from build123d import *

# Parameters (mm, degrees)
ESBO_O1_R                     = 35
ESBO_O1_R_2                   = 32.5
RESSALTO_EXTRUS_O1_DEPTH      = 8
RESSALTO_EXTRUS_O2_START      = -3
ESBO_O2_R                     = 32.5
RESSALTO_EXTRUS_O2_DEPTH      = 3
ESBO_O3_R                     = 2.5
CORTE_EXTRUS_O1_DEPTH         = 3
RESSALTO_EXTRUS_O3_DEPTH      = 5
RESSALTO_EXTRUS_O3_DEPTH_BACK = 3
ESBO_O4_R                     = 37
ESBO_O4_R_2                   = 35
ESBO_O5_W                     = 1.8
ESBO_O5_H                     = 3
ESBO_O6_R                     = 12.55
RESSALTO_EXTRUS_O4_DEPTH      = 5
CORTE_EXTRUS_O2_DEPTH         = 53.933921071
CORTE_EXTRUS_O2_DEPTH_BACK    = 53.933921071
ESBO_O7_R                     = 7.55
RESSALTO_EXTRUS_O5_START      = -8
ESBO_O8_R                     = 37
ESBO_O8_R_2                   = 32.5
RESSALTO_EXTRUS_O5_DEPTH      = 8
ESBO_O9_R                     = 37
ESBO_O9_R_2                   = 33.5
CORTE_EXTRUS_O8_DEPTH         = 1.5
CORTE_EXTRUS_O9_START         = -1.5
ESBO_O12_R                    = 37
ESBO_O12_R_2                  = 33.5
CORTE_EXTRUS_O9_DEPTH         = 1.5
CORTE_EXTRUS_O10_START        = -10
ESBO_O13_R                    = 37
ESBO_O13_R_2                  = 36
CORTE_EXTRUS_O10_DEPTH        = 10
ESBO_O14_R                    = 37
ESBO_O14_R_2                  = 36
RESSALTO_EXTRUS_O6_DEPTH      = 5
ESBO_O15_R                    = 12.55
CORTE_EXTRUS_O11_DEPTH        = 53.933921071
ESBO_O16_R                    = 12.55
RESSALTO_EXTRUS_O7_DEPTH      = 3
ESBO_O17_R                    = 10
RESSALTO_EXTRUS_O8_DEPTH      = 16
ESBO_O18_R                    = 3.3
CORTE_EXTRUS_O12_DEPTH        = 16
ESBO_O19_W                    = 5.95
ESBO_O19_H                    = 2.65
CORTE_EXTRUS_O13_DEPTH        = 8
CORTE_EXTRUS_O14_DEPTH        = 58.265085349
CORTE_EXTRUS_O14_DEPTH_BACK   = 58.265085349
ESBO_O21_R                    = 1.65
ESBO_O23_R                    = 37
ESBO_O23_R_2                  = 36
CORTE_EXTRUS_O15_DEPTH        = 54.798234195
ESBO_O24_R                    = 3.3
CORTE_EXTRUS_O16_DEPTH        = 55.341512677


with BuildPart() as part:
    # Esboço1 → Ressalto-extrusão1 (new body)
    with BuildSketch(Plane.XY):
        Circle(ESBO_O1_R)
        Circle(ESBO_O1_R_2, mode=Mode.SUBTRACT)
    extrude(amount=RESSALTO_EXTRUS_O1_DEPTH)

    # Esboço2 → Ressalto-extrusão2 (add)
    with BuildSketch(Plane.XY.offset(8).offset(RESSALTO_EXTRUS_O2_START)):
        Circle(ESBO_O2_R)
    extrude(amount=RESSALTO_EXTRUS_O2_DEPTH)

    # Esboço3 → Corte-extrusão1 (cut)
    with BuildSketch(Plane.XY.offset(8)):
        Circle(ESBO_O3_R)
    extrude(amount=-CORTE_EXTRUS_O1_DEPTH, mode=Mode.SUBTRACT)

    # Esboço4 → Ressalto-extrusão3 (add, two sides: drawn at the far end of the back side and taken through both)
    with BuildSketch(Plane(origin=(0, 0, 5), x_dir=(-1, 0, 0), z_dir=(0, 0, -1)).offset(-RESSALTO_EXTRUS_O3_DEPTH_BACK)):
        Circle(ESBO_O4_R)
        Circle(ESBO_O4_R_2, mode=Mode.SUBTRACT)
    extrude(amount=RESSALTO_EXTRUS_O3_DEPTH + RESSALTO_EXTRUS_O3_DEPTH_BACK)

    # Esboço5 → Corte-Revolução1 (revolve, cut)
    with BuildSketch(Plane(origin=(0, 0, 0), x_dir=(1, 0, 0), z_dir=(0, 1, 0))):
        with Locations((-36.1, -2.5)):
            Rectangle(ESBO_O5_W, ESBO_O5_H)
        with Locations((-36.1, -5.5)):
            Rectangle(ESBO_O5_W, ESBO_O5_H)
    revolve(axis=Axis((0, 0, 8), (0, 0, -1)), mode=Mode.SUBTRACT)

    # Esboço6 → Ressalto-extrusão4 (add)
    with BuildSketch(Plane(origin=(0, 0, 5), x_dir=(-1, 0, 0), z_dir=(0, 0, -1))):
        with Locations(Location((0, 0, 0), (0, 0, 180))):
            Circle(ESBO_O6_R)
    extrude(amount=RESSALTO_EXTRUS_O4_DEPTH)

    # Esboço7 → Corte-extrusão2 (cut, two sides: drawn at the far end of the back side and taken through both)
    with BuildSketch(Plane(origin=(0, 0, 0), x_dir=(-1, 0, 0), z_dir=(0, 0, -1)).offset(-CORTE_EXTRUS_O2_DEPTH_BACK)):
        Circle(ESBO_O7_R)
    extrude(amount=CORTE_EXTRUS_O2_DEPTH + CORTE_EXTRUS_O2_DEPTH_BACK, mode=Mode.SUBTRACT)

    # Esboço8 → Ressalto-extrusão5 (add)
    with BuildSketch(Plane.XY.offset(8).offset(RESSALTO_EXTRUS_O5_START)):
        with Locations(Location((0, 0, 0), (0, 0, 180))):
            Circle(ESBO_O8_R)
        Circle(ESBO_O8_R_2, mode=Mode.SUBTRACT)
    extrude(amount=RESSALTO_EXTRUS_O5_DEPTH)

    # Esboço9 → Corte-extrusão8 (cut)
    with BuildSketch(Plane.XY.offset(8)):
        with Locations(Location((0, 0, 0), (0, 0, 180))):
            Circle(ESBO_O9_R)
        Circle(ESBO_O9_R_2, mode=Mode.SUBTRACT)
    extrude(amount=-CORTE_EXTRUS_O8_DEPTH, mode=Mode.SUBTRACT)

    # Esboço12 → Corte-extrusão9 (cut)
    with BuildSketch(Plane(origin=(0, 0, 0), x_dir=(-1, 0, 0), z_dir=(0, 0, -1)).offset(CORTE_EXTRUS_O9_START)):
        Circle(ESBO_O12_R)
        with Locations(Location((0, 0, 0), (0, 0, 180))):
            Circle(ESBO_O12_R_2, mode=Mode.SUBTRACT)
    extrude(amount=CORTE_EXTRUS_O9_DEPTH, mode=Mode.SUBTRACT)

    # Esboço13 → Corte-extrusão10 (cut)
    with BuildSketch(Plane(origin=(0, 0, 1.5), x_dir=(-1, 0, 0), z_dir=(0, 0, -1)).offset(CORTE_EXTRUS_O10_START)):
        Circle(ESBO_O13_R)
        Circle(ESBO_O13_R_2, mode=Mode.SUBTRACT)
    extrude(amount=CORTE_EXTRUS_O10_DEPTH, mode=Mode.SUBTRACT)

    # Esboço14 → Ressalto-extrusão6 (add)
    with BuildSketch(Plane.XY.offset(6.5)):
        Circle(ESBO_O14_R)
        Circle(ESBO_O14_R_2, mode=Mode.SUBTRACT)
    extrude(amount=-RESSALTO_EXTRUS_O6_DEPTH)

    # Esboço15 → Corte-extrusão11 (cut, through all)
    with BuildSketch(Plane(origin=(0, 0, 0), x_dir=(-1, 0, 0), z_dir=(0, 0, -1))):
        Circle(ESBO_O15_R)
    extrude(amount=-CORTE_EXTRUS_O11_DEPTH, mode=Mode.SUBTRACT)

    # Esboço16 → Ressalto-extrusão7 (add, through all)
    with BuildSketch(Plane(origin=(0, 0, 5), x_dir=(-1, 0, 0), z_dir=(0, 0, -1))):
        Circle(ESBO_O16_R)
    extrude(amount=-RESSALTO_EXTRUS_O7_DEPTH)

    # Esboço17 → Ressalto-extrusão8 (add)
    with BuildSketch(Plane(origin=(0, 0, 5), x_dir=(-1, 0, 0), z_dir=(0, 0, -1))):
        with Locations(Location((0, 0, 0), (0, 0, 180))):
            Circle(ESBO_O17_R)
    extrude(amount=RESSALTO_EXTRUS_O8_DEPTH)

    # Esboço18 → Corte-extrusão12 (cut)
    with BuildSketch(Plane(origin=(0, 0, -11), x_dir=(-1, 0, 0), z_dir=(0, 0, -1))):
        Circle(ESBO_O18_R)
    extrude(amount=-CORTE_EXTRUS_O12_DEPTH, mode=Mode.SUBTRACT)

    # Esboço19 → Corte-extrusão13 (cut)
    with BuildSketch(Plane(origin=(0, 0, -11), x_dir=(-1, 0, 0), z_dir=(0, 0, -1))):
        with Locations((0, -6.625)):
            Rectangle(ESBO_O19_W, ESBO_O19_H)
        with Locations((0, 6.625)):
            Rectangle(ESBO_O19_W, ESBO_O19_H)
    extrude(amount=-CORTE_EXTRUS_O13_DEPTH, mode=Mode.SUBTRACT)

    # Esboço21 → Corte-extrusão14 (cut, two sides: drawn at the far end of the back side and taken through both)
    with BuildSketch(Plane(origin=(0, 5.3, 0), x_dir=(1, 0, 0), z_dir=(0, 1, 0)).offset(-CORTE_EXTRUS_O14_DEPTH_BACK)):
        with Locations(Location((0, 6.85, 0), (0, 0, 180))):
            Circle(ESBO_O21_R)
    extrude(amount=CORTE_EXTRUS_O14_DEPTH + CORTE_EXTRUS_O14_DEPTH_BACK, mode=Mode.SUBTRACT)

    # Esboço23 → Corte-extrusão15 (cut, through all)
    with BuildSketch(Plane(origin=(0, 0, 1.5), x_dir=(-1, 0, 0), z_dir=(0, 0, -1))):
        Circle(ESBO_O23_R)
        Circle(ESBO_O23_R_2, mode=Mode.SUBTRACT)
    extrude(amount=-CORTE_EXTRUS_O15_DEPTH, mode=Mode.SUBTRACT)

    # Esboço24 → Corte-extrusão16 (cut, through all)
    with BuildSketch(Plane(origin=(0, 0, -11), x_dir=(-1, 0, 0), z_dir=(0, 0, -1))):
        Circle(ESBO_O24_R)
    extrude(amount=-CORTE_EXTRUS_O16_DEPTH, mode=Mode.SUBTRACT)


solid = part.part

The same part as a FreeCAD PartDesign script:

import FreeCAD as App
import Part
import Sketcher


def add_polygon(sketch, points):
    """Adds a closed chain of lines whose ends are joined by coincident constraints."""
    first, n = sketch.GeometryCount, len(points)
    for a, b in zip(points, points[1:] + points[:1]):
        sketch.addGeometry(Part.LineSegment(App.Vector(*a, 0), App.Vector(*b, 0)), False)
    for i in range(n):
        sketch.addConstraint(Sketcher.Constraint("Coincident", first + i, 2, first + (i + 1) % n, 1))

doc = App.newDocument("Part")
body = doc.addObject("PartDesign::Body", "Body")

sketch1 = body.newObject("Sketcher::SketchObject", "Sketch")
sketch1.AttachmentSupport = (doc.getObject("XY_Plane"), [""])
sketch1.MapMode = "FlatFace"
sketch1.addGeometry([
    Part.Circle(App.Vector(0, 0, 0), App.Vector(0, 0, 1), 35),
    Part.Circle(App.Vector(0, 0, 0), App.Vector(0, 0, 1), 32.5),
], False)
sketch1.addConstraint([
    Sketcher.Constraint("Coincident", 0, 3, -1, 1),
    Sketcher.Constraint("Coincident", 1, 3, -1, 1),
    Sketcher.Constraint("Diameter", 0, 70.0),
    Sketcher.Constraint("Diameter", 1, 65.0),
])
pad1 = body.newObject("PartDesign::Pad", "Pad")
pad1.Profile = sketch1
pad1.Length = 8

sketch2 = body.newObject("Sketcher::SketchObject", "Sketch001")
sketch2.AttachmentSupport = (doc.getObject("XY_Plane"), [""])
sketch2.MapMode = "FlatFace"
sketch2.AttachmentOffset = App.Placement(App.Vector(0, 0, 5), App.Rotation())
sketch2.addGeometry(Part.Circle(App.Vector(0, 0, 0), App.Vector(0, 0, 1), 32.5), False)
sketch2.addConstraint([
    Sketcher.Constraint("Coincident", 0, 3, -1, 1),
    Sketcher.Constraint("Diameter", 0, 65.0),
])
pad2 = body.newObject("PartDesign::Pad", "Pad001")
pad2.Profile = sketch2
pad2.Length = 3

sketch3 = body.newObject("Sketcher::SketchObject", "Sketch002")
sketch3.AttachmentSupport = (doc.getObject("XY_Plane"), [""])
sketch3.MapMode = "FlatFace"
sketch3.AttachmentOffset = App.Placement(App.Vector(0, 0, 8), App.Rotation())
sketch3.addGeometry(Part.Circle(App.Vector(0, 0, 0), App.Vector(0, 0, 1), 2.5), False)
sketch3.addConstraint([
    Sketcher.Constraint("Coincident", 0, 3, -1, 1),
    Sketcher.Constraint("Diameter", 0, 5.0),
])
pocket1 = body.newObject("PartDesign::Pocket", "Pocket")
pocket1.Profile = sketch3
pocket1.Length = 3

sketch4 = body.newObject("Sketcher::SketchObject", "Sketch003")
sketch4.AttachmentSupport = (doc.getObject("XY_Plane"), [""])
sketch4.MapMode = "FlatFace"
sketch4.AttachmentOffset = App.Placement(App.Vector(0, 0, 5), App.Rotation())
sketch4.addGeometry([
    Part.Circle(App.Vector(0, 0, 0), App.Vector(0, 0, 1), 37),
    Part.Circle(App.Vector(0, 0, 0), App.Vector(0, 0, 1), 35),
], False)
sketch4.addConstraint([
    Sketcher.Constraint("Coincident", 0, 3, -1, 1),
    Sketcher.Constraint("Coincident", 1, 3, -1, 1),
    Sketcher.Constraint("Diameter", 0, 74.0),
    Sketcher.Constraint("Diameter", 1, 70.0),
])
pad3 = body.newObject("PartDesign::Pad", "Pad002")
pad3.Profile = sketch4
pad3.Type = "TwoLengths"
pad3.Length = 5
pad3.Length2 = 3
pad3.Reversed = True

sketch5 = body.newObject("Sketcher::SketchObject", "Sketch004")
sketch5.AttachmentSupport = (doc.getObject("XZ_Plane"), [""])
sketch5.MapMode = "FlatFace"
add_polygon(sketch5, [(-37, 1), (-37, 7), (-35.2, 7), (-35.2, 1)])
sketch5.addConstraint([
    Sketcher.Constraint("Vertical", 0),
    Sketcher.Constraint("Horizontal", 1),
    Sketcher.Constraint("Vertical", 2),
    Sketcher.Constraint("Horizontal", 3),
    Sketcher.Constraint("DistanceY", 0, 1, 0, 2, 6.0),
    Sketcher.Constraint("DistanceX", 1, 1, 1, 2, 1.8),
    Sketcher.Constraint("DistanceX", 0, 2, -1, 1, 37.0),
    Sketcher.Constraint("DistanceY", -1, 1, 0, 2, 7.0),
])
groove = body.newObject("PartDesign::Groove", "Groove")
groove.Profile = sketch5
groove.ReferenceAxis = (sketch5, ["V_Axis"])
groove.Angle = 360

sketch6 = body.newObject("Sketcher::SketchObject", "Sketch005")
sketch6.AttachmentSupport = (doc.getObject("XY_Plane"), [""])
sketch6.MapMode = "FlatFace"
sketch6.AttachmentOffset = App.Placement(App.Vector(0, 0, 5), App.Rotation())
sketch6.addGeometry(Part.Circle(App.Vector(0, 0, 0), App.Vector(0, 0, 1), 12.55), False)
sketch6.addConstraint([
    Sketcher.Constraint("Coincident", 0, 3, -1, 1),
    Sketcher.Constraint("Diameter", 0, 25.1),
])
pad4 = body.newObject("PartDesign::Pad", "Pad003")
pad4.Profile = sketch6
pad4.Length = 5
pad4.Reversed = True

sketch7 = body.newObject("Sketcher::SketchObject", "Sketch006")
sketch7.AttachmentSupport = (doc.getObject("XY_Plane"), [""])
sketch7.MapMode = "FlatFace"
sketch7.addGeometry(Part.Circle(App.Vector(0, 0, 0), App.Vector(0, 0, 1), 7.55), False)
sketch7.addConstraint([
    Sketcher.Constraint("Coincident", 0, 3, -1, 1),
    Sketcher.Constraint("Diameter", 0, 15.1),
])
pocket2 = body.newObject("PartDesign::Pocket", "Pocket001")
pocket2.Profile = sketch7
pocket2.Type = "ThroughAll"
pocket2.Midplane = True

sketch8 = body.newObject("Sketcher::SketchObject", "Sketch007")
sketch8.AttachmentSupport = (doc.getObject("XY_Plane"), [""])
sketch8.MapMode = "FlatFace"
sketch8.addGeometry([
    Part.Circle(App.Vector(0, 0, 0), App.Vector(0, 0, 1), 37),
    Part.Circle(App.Vector(0, 0, 0), App.Vector(0, 0, 1), 32.5),
], False)
sketch8.addConstraint([
    Sketcher.Constraint("Coincident", 0, 3, -1, 1),
    Sketcher.Constraint("Coincident", 1, 3, -1, 1),
    Sketcher.Constraint("Diameter", 0, 74.0),
    Sketcher.Constraint("Diameter", 1, 65.0),
])
pad5 = body.newObject("PartDesign::Pad", "Pad004")
pad5.Profile = sketch8
pad5.Length = 8

sketch9 = body.newObject("Sketcher::SketchObject", "Sketch008")
sketch9.AttachmentSupport = (doc.getObject("XY_Plane"), [""])
sketch9.MapMode = "FlatFace"
sketch9.AttachmentOffset = App.Placement(App.Vector(0, 0, 8), App.Rotation())
sketch9.addGeometry([
    Part.Circle(App.Vector(0, 0, 0), App.Vector(0, 0, 1), 37),
    Part.Circle(App.Vector(0, 0, 0), App.Vector(0, 0, 1), 33.5),
], False)
sketch9.addConstraint([
    Sketcher.Constraint("Coincident", 0, 3, -1, 1),
    Sketcher.Constraint("Coincident", 1, 3, -1, 1),
    Sketcher.Constraint("Diameter", 0, 74.0),
    Sketcher.Constraint("Diameter", 1, 67.0),
])
pocket3 = body.newObject("PartDesign::Pocket", "Pocket002")
pocket3.Profile = sketch9
pocket3.Length = 1.5

sketch10 = body.newObject("Sketcher::SketchObject", "Sketch009")
sketch10.AttachmentSupport = (doc.getObject("XY_Plane"), [""])
sketch10.MapMode = "FlatFace"
sketch10.AttachmentOffset = App.Placement(App.Vector(0, 0, 1.5), App.Rotation())
sketch10.addGeometry([
    Part.Circle(App.Vector(0, 0, 0), App.Vector(0, 0, 1), 37),
    Part.Circle(App.Vector(0, 0, 0), App.Vector(0, 0, 1), 33.5),
], False)
sketch10.addConstraint([
    Sketcher.Constraint("Coincident", 0, 3, -1, 1),
    Sketcher.Constraint("Coincident", 1, 3, -1, 1),
    Sketcher.Constraint("Diameter", 0, 74.0),
    Sketcher.Constraint("Diameter", 1, 67.0),
])
pocket4 = body.newObject("PartDesign::Pocket", "Pocket003")
pocket4.Profile = sketch10
pocket4.Length = 1.5

sketch11 = body.newObject("Sketcher::SketchObject", "Sketch010")
sketch11.AttachmentSupport = (doc.getObject("XY_Plane"), [""])
sketch11.MapMode = "FlatFace"
sketch11.AttachmentOffset = App.Placement(App.Vector(0, 0, 11.5), App.Rotation())
sketch11.addGeometry([
    Part.Circle(App.Vector(0, 0, 0), App.Vector(0, 0, 1), 37),
    Part.Circle(App.Vector(0, 0, 0), App.Vector(0, 0, 1), 36),
], False)
sketch11.addConstraint([
    Sketcher.Constraint("Coincident", 0, 3, -1, 1),
    Sketcher.Constraint("Coincident", 1, 3, -1, 1),
    Sketcher.Constraint("Diameter", 0, 74.0),
    Sketcher.Constraint("Diameter", 1, 72.0),
])
pocket5 = body.newObject("PartDesign::Pocket", "Pocket004")
pocket5.Profile = sketch11
pocket5.Length = 10

sketch12 = body.newObject("Sketcher::SketchObject", "Sketch011")
sketch12.AttachmentSupport = (doc.getObject("XY_Plane"), [""])
sketch12.MapMode = "FlatFace"
sketch12.AttachmentOffset = App.Placement(App.Vector(0, 0, 6.5), App.Rotation())
sketch12.addGeometry([
    Part.Circle(App.Vector(0, 0, 0), App.Vector(0, 0, 1), 37),
    Part.Circle(App.Vector(0, 0, 0), App.Vector(0, 0, 1), 36),
], False)
sketch12.addConstraint([
    Sketcher.Constraint("Coincident", 0, 3, -1, 1),
    Sketcher.Constraint("Coincident", 1, 3, -1, 1),
    Sketcher.Constraint("Diameter", 0, 74.0),
    Sketcher.Constraint("Diameter", 1, 72.0),
])
pad6 = body.newObject("PartDesign::Pad", "Pad005")
pad6.Profile = sketch12
pad6.Length = 5
pad6.Reversed = True

sketch13 = body.newObject("Sketcher::SketchObject", "Sketch012")
sketch13.AttachmentSupport = (doc.getObject("XY_Plane"), [""])
sketch13.MapMode = "FlatFace"
sketch13.addGeometry(Part.Circle(App.Vector(0, 0, 0), App.Vector(0, 0, 1), 12.55), False)
sketch13.addConstraint([
    Sketcher.Constraint("Coincident", 0, 3, -1, 1),
    Sketcher.Constraint("Diameter", 0, 25.1),
])
pocket6 = body.newObject("PartDesign::Pocket", "Pocket005")
pocket6.Profile = sketch13
pocket6.Type = "ThroughAll"
pocket6.Reversed = True

sketch14 = body.newObject("Sketcher::SketchObject", "Sketch013")
sketch14.AttachmentSupport = (doc.getObject("XY_Plane"), [""])
sketch14.MapMode = "FlatFace"
sketch14.AttachmentOffset = App.Placement(App.Vector(0, 0, 5), App.Rotation())
sketch14.addGeometry(Part.Circle(App.Vector(0, 0, 0), App.Vector(0, 0, 1), 12.55), False)
sketch14.addConstraint([
    Sketcher.Constraint("Coincident", 0, 3, -1, 1),
    Sketcher.Constraint("Diameter", 0, 25.1),
])
pad7 = body.newObject("PartDesign::Pad", "Pad006")
pad7.Profile = sketch14
pad7.Length = 3

sketch15 = body.newObject("Sketcher::SketchObject", "Sketch014")
sketch15.AttachmentSupport = (doc.getObject("XY_Plane"), [""])
sketch15.MapMode = "FlatFace"
sketch15.AttachmentOffset = App.Placement(App.Vector(0, 0, 5), App.Rotation())
sketch15.addGeometry(Part.Circle(App.Vector(0, 0, 0), App.Vector(0, 0, 1), 10), False)
sketch15.addConstraint([
    Sketcher.Constraint("Coincident", 0, 3, -1, 1),
    Sketcher.Constraint("Diameter", 0, 20.0),
])
pad8 = body.newObject("PartDesign::Pad", "Pad007")
pad8.Profile = sketch15
pad8.Length = 16
pad8.Reversed = True

sketch16 = body.newObject("Sketcher::SketchObject", "Sketch015")
sketch16.AttachmentSupport = (doc.getObject("XY_Plane"), [""])
sketch16.MapMode = "FlatFace"
sketch16.AttachmentOffset = App.Placement(App.Vector(0, 0, -11), App.Rotation())
sketch16.addGeometry(Part.Circle(App.Vector(0, 0, 0), App.Vector(0, 0, 1), 3.3), False)
sketch16.addConstraint([
    Sketcher.Constraint("Coincident", 0, 3, -1, 1),
    Sketcher.Constraint("Diameter", 0, 6.6),
])
pocket7 = body.newObject("PartDesign::Pocket", "Pocket006")
pocket7.Profile = sketch16
pocket7.Length = 16
pocket7.Reversed = True

sketch17 = body.newObject("Sketcher::SketchObject", "Sketch016")
sketch17.AttachmentSupport = (doc.getObject("XY_Plane"), [""])
sketch17.MapMode = "FlatFace"
sketch17.AttachmentOffset = App.Placement(App.Vector(0, 0, -11), App.Rotation())
add_polygon(sketch17, [(2.975, -5.3), (2.975, -7.95), (-2.975, -7.95), (-2.975, -5.3)])
add_polygon(sketch17, [(2.975, 7.95), (2.975, 5.3), (-2.975, 5.3), (-2.975, 7.95)])
sketch17.addConstraint([
    Sketcher.Constraint("Vertical", 0),
    Sketcher.Constraint("Horizontal", 1),
    Sketcher.Constraint("Vertical", 2),
    Sketcher.Constraint("Horizontal", 3),
    Sketcher.Constraint("Vertical", 4),
    Sketcher.Constraint("Horizontal", 5),
    Sketcher.Constraint("Vertical", 6),
    Sketcher.Constraint("Horizontal", 7),
    Sketcher.Constraint("Symmetric", 2, 2, 4, 2, -1, 1),
    Sketcher.Constraint("Symmetric", 0, 2, 6, 2, -1, 1),
    Sketcher.Constraint("Vertical", 3, 2, 4, 2),
    Sketcher.Constraint("DistanceX", 1, 2, 1, 1, 5.95),
    Sketcher.Constraint("DistanceY", 0, 2, 0, 1, 2.65),
    Sketcher.Constraint("DistanceY", 2, 2, -1, 1, 5.3),
])
pocket8 = body.newObject("PartDesign::Pocket", "Pocket007")
pocket8.Profile = sketch17
pocket8.Length = 8
pocket8.Reversed = True

sketch18 = body.newObject("Sketcher::SketchObject", "Sketch017")
sketch18.AttachmentSupport = (doc.getObject("XZ_Plane"), [""])
sketch18.MapMode = "FlatFace"
sketch18.AttachmentOffset = App.Placement(App.Vector(0, 0, -5.3), App.Rotation())
sketch18.addGeometry(Part.Circle(App.Vector(0, -6.85, 0), App.Vector(0, 0, 1), 1.65), False)
sketch18.addConstraint([
    Sketcher.Constraint("PointOnObject", 0, 3, -2),
    Sketcher.Constraint("Diameter", 0, 3.3),
    Sketcher.Constraint("DistanceY", 0, 3, -1, 1, 6.85),
])
pocket9 = body.newObject("PartDesign::Pocket", "Pocket008")
pocket9.Profile = sketch18
pocket9.Type = "ThroughAll"
pocket9.Midplane = True

sketch19 = body.newObject("Sketcher::SketchObject", "Sketch018")
sketch19.AttachmentSupport = (doc.getObject("XY_Plane"), [""])
sketch19.MapMode = "FlatFace"
sketch19.AttachmentOffset = App.Placement(App.Vector(0, 0, 1.5), App.Rotation())
sketch19.addGeometry([
    Part.Circle(App.Vector(0, 0, 0), App.Vector(0, 0, 1), 37),
    Part.Circle(App.Vector(0, 0, 0), App.Vector(0, 0, 1), 36),
], False)
sketch19.addConstraint([
    Sketcher.Constraint("Coincident", 0, 3, -1, 1),
    Sketcher.Constraint("Coincident", 1, 3, -1, 1),
    Sketcher.Constraint("Diameter", 0, 74.0),
    Sketcher.Constraint("Diameter", 1, 72.0),
])
pocket10 = body.newObject("PartDesign::Pocket", "Pocket009")
pocket10.Profile = sketch19
pocket10.Type = "ThroughAll"
pocket10.Reversed = True

sketch20 = body.newObject("Sketcher::SketchObject", "Sketch019")
sketch20.AttachmentSupport = (doc.getObject("XY_Plane"), [""])
sketch20.MapMode = "FlatFace"
sketch20.AttachmentOffset = App.Placement(App.Vector(0, 0, -11), App.Rotation())
sketch20.addGeometry(Part.Circle(App.Vector(0, 0, 0), App.Vector(0, 0, 1), 3.3), False)
sketch20.addConstraint([
    Sketcher.Constraint("Coincident", 0, 3, -1, 1),
    Sketcher.Constraint("Diameter", 0, 6.6),
])
pocket11 = body.newObject("PartDesign::Pocket", "Pocket010")
pocket11.Profile = sketch20
pocket11.Type = "ThroughAll"
pocket11.Reversed = True

doc.recompute()
